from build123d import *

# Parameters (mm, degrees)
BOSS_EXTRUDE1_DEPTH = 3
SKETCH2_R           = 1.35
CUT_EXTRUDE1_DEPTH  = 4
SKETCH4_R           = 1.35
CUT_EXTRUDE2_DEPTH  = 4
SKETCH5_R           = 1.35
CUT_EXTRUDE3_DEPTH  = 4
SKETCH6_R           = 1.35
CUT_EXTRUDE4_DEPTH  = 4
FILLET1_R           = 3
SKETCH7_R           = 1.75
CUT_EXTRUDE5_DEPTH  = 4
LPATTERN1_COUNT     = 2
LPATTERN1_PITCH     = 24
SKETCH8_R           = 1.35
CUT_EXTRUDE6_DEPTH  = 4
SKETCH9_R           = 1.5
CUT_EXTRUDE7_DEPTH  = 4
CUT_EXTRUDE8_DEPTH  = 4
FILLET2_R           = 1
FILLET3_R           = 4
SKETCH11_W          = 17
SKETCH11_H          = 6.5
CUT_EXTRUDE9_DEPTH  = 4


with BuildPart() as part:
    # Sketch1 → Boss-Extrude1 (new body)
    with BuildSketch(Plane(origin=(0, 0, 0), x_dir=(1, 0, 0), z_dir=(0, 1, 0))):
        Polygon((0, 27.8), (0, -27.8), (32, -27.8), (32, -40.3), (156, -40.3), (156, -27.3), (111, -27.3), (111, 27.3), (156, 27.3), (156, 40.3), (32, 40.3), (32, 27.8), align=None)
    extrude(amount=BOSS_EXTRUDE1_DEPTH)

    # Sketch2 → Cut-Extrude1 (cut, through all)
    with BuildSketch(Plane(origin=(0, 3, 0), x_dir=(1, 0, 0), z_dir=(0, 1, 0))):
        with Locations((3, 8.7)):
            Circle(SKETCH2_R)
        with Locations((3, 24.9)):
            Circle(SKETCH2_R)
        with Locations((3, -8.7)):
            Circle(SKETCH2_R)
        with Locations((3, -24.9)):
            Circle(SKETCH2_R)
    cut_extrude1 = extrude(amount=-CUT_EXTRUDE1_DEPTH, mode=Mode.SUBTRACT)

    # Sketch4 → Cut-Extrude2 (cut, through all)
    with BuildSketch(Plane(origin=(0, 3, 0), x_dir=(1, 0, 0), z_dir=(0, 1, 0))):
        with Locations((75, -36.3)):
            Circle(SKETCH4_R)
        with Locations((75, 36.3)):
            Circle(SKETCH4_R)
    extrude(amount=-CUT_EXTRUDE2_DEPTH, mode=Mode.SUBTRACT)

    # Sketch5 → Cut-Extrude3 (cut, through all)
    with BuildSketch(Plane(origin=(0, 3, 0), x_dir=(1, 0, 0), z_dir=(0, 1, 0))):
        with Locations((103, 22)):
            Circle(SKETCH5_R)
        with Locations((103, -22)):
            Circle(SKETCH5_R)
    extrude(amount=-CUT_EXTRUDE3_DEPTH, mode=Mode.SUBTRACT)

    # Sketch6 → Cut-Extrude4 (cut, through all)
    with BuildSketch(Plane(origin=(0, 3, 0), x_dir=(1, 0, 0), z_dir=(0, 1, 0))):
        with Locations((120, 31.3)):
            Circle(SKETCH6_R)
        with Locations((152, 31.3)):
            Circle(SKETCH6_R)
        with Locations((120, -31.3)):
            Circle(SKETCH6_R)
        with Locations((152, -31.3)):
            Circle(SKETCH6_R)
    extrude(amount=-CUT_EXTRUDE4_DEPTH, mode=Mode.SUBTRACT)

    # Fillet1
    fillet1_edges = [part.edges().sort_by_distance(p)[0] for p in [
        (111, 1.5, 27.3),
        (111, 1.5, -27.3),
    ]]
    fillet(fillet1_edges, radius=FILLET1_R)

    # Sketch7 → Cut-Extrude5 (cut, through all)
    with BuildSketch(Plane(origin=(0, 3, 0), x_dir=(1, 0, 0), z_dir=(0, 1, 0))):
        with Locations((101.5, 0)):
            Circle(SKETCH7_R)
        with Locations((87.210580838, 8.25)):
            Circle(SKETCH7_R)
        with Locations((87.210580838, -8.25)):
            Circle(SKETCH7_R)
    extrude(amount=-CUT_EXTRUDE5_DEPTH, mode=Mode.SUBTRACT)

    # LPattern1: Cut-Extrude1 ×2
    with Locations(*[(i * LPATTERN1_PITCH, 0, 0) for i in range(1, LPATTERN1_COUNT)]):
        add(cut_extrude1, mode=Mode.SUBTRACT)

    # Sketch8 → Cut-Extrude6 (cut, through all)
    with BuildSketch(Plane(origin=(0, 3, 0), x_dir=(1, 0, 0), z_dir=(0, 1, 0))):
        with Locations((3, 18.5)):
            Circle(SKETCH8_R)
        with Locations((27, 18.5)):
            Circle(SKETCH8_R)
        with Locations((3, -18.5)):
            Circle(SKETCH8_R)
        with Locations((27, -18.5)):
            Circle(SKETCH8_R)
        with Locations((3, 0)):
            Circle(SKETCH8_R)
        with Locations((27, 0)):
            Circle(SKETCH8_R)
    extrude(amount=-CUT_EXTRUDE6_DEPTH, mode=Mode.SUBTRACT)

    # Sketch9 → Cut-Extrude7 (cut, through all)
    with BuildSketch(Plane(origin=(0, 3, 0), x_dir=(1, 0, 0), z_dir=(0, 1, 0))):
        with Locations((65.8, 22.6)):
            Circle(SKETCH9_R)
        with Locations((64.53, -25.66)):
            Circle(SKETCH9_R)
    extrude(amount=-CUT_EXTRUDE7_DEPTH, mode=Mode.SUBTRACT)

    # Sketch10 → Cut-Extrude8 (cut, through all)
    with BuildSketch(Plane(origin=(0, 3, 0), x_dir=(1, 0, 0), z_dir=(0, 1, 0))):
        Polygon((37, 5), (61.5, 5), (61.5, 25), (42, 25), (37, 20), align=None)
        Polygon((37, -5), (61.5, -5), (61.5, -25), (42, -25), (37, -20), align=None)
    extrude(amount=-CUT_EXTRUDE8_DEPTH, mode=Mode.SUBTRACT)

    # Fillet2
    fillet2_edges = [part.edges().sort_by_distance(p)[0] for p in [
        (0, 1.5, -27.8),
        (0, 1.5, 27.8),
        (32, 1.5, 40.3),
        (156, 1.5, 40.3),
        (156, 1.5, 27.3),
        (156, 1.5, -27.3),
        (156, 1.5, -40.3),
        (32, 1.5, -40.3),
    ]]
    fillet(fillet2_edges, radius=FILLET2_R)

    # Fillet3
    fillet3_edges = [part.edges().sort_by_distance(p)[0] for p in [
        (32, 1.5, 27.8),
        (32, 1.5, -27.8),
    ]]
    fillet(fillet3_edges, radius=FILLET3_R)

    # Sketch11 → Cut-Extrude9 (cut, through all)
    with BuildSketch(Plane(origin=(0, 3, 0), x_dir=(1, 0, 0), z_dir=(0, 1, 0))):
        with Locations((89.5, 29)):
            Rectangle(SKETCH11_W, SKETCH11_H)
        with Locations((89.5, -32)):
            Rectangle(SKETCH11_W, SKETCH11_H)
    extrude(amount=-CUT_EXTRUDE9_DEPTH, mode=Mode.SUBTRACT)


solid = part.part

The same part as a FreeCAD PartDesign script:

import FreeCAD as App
import Part
import Sketcher
from FreeCAD import Vector


def edges_at(feature, points):
    """Names of the edges that pass closest to the given points."""
    edges = feature.Shape.Edges
    near = lambda p: min(range(len(edges)), key=lambda i: edges[i].distToShape(Part.Vertex(*p))[0])
    return sorted({f"Edge{near(p) + 1}" for p in points})


def add_polygon(sketch, points):
    """Adds a closed chain of lines whose ends are joined by coincident constraints."""
    first, n = sketch.GeometryCount, len(points)
    for a, b in zip(points, points[1:] + points[:1]):
        sketch.addGeometry(Part.LineSegment(App.Vector(*a, 0), App.Vector(*b, 0)), False)
    for i in range(n):
        sketch.addConstraint(Sketcher.Constraint("Coincident", first + i, 2, first + (i + 1) % n, 1))

doc = App.newDocument("Part")
body = doc.addObject("PartDesign::Body", "Body")

sketch1 = doc.addObject("Sketcher::SketchObject", "Sketch")
body.addObject(sketch1)
sketch1.AttachmentSupport = (doc.XZ_Plane, [""])
sketch1.MapMode = "FlatFace"
add_polygon(sketch1, [(0, -27.8), (0, 27.8), (32, 27.8), (32, 40.3), (156, 40.3), (156, 27.3), (111, 27.3), (111, -27.3), (156, -27.3), (156, -40.3), (32, -40.3), (32, -27.8)])
sketch1.addConstraint(Sketcher.Constraint("Vertical", 0))
sketch1.addConstraint(Sketcher.Constraint("Horizontal", 1))
sketch1.addConstraint(Sketcher.Constraint("Vertical", 2))
sketch1.addConstraint(Sketcher.Constraint("Horizontal", 3))
sketch1.addConstraint(Sketcher.Constraint("Vertical", 4))
sketch1.addConstraint(Sketcher.Constraint("Horizontal", 5))
sketch1.addConstraint(Sketcher.Constraint("Vertical", 6))
sketch1.addConstraint(Sketcher.Constraint("Horizontal", 7))
sketch1.addConstraint(Sketcher.Constraint("Vertical", 8))
sketch1.addConstraint(Sketcher.Constraint("Horizontal", 9))
sketch1.addConstraint(Sketcher.Constraint("Vertical", 10))
sketch1.addConstraint(Sketcher.Constraint("Horizontal", 11))
sketch1.addConstraint(Sketcher.Constraint("Symmetric", 0, 2, 11, 2, -1, 1))
sketch1.addConstraint(Sketcher.Constraint("Symmetric", 4, 2, 7, 2, -1))
sketch1.addConstraint(Sketcher.Constraint("Symmetric", 2, 2, 9, 2, -1))
sketch1.addConstraint(Sketcher.Constraint("DistanceX", 1, 1, 1, 2, 32.0))
sketch1.addConstraint(Sketcher.Constraint("DistanceX", 3, 1, 3, 2, 124.0))
sketch1.addConstraint(Sketcher.Constraint("DistanceX", 5, 2, 5, 1, 45.0))
sketch1.addConstraint(Sketcher.Constraint("DistanceY", 4, 2, 4, 1, 13.0))
sketch1.addConstraint(Sketcher.Constraint("DistanceY", 0, 1, 0, 2, 55.6))
sketch1.addConstraint(Sketcher.Constraint("DistanceY", 2, 1, 2, 2, 12.5))
pad1 = doc.addObject("PartDesign::Pad", "Pad")
body.addObject(pad1)
pad1.Profile = sketch1
pad1.Length = 3
pad1.Reversed = True

sketch2 = doc.addObject("Sketcher::SketchObject", "Sketch001")
body.addObject(sketch2)
sketch2.AttachmentSupport = (doc.XZ_Plane, [""])
sketch2.MapMode = "FlatFace"
sketch2.AttachmentOffset = App.Placement(Vector(0, 0, -3), App.Rotation())
sketch2.addGeometry(Part.Circle(Vector(3, -8.7, 0), Vector(0, 0, 1), 1.35), False)
sketch2.addGeometry(Part.Circle(Vector(3, -24.9, 0), Vector(0, 0, 1), 1.35), False)
sketch2.addGeometry(Part.Circle(Vector(3, 8.7, 0), Vector(0, 0, 1), 1.35), False)
sketch2.addGeometry(Part.Circle(Vector(3, 24.9, 0), Vector(0, 0, 1), 1.35), False)
sketch2.addConstraint(Sketcher.Constraint("Equal", 0, 1))
sketch2.addConstraint(Sketcher.Constraint("Equal", 1, 2))
sketch2.addConstraint(Sketcher.Constraint("Equal", 2, 3))
sketch2.addConstraint(Sketcher.Constraint("Symmetric", 0, 3, 2, 3, -1))
sketch2.addConstraint(Sketcher.Constraint("Symmetric", 1, 3, 3, 3, -1))
sketch2.addConstraint(Sketcher.Constraint("Vertical", 0, 3, 1, 3))
sketch2.addConstraint(Sketcher.Constraint("Diameter", 0, 2.7))
sketch2.addConstraint(Sketcher.Constraint("DistanceX", -1, 1, 0, 3, 3.0))
sketch2.addConstraint(Sketcher.Constraint("DistanceY", 0, 3, -1, 1, 8.7))
sketch2.addConstraint(Sketcher.Constraint("DistanceY", 1, 3, -1, 1, 24.9))
pocket1 = doc.addObject("PartDesign::Pocket", "Pocket")
body.addObject(pocket1)
pocket1.Profile = sketch2
pocket1.Type = "ThroughAll"
pocket1.Reversed = True

sketch3 = doc.addObject("Sketcher::SketchObject", "Sketch002")
body.addObject(sketch3)
sketch3.AttachmentSupport = (doc.XZ_Plane, [""])
sketch3.MapMode = "FlatFace"
sketch3.AttachmentOffset = App.Placement(Vector(0, 0, -3), App.Rotation())
sketch3.addGeometry(Part.Circle(Vector(75, 36.3, 0), Vector(0, 0, 1), 1.35), False)
sketch3.addGeometry(Part.Circle(Vector(75, -36.3, 0), Vector(0, 0, 1), 1.35), False)
sketch3.addConstraint(Sketcher.Constraint("Equal", 0, 1))
sketch3.addConstraint(Sketcher.Constraint("Symmetric", 0, 3, 1, 3, -1))
sketch3.addConstraint(Sketcher.Constraint("Diameter", 0, 2.7))
sketch3.addConstraint(Sketcher.Constraint("DistanceX", -1, 1, 0, 3, 75.0))
sketch3.addConstraint(Sketcher.Constraint("DistanceY", -1, 1, 0, 3, 36.3))
pocket2 = doc.addObject("PartDesign::Pocket", "Pocket001")
body.addObject(pocket2)
pocket2.Profile = sketch3
pocket2.Type = "ThroughAll"
pocket2.Reversed = True

sketch4 = doc.addObject("Sketcher::SketchObject", "Sketch003")
body.addObject(sketch4)
sketch4.AttachmentSupport = (doc.XZ_Plane, [""])
sketch4.MapMode = "FlatFace"
sketch4.AttachmentOffset = App.Placement(Vector(0, 0, -3), App.Rotation())
sketch4.addGeometry(Part.Circle(Vector(103, -22, 0), Vector(0, 0, 1), 1.35), False)
sketch4.addGeometry(Part.Circle(Vector(103, 22, 0), Vector(0, 0, 1), 1.35), False)
sketch4.addConstraint(Sketcher.Constraint("Equal", 0, 1))
sketch4.addConstraint(Sketcher.Constraint("Symmetric", 0, 3, 1, 3, -1))
sketch4.addConstraint(Sketcher.Constraint("Diameter", 0, 2.7))
sketch4.addConstraint(Sketcher.Constraint("DistanceX", -1, 1, 0, 3, 103.0))
sketch4.addConstraint(Sketcher.Constraint("DistanceY", 0, 3, -1, 1, 22.0))
pocket3 = doc.addObject("PartDesign::Pocket", "Pocket002")
body.addObject(pocket3)
pocket3.Profile = sketch4
pocket3.Type = "ThroughAll"
pocket3.Reversed = True

sketch5 = doc.addObject("Sketcher::SketchObject", "Sketch004")
body.addObject(sketch5)
sketch5.AttachmentSupport = (doc.XZ_Plane, [""])
sketch5.MapMode = "FlatFace"
sketch5.AttachmentOffset = App.Placement(Vector(0, 0, -3), App.Rotation())
sketch5.addGeometry(Part.Circle(Vector(120, -31.3, 0), Vector(0, 0, 1), 1.35), False)
sketch5.addGeometry(Part.Circle(Vector(152, -31.3, 0), Vector(0, 0, 1), 1.35), False)
sketch5.addGeometry(Part.Circle(Vector(120, 31.3, 0), Vector(0, 0, 1), 1.35), False)
sketch5.addGeometry(Part.Circle(Vector(152, 31.3, 0), Vector(0, 0, 1), 1.35), False)
sketch5.addConstraint(Sketcher.Constraint("Equal", 0, 1))
sketch5.addConstraint(Sketcher.Constraint("Equal", 1, 2))
sketch5.addConstraint(Sketcher.Constraint("Equal", 2, 3))
sketch5.addConstraint(Sketcher.Constraint("Symmetric", 0, 3, 2, 3, -1))
sketch5.addConstraint(Sketcher.Constraint("Symmetric", 1, 3, 3, 3, -1))
sketch5.addConstraint(Sketcher.Constraint("Horizontal", 0, 3, 1, 3))
sketch5.addConstraint(Sketcher.Constraint("Diameter", 0, 2.7))
sketch5.addConstraint(Sketcher.Constraint("DistanceX", -1, 1, 0, 3, 120.0))
sketch5.addConstraint(Sketcher.Constraint("DistanceX", -1, 1, 1, 3, 152.0))
sketch5.addConstraint(Sketcher.Constraint("DistanceY", 0, 3, -1, 1, 31.3))
pocket4 = doc.addObject("PartDesign::Pocket", "Pocket003")
body.addObject(pocket4)
pocket4.Profile = sketch5
pocket4.Type = "ThroughAll"
pocket4.Reversed = True
doc.recompute()

fillet = doc.addObject("PartDesign::Fillet", "Fillet")
body.addObject(fillet)
fillet.Base = (pocket4, edges_at(pocket4, [(111, 1.5, 27.3), (111, 1.5, -27.3)]))
fillet.Radius = 3

sketch6 = doc.addObject("Sketcher::SketchObject", "Sketch005")
body.addObject(sketch6)
sketch6.AttachmentSupport = (doc.XZ_Plane, [""])
sketch6.MapMode = "FlatFace"
sketch6.AttachmentOffset = App.Placement(Vector(0, 0, -3), App.Rotation())
sketch6.addGeometry(Part.Circle(Vector(101.5, 0, 0), Vector(0, 0, 1), 1.75), False)
sketch6.addGeometry(Part.Circle(Vector(87.210581, -8.25, 0), Vector(0, 0, 1), 1.75), False)
sketch6.addGeometry(Part.Circle(Vector(87.210581, 8.25, 0), Vector(0, 0, 1), 1.75), False)
sketch6.addConstraint(Sketcher.Constraint("Equal", 0, 1))
sketch6.addConstraint(Sketcher.Constraint("Equal", 1, 2))
sketch6.addConstraint(Sketcher.Constraint("Symmetric", 1, 3, 2, 3, -1))
sketch6.addConstraint(Sketcher.Constraint("PointOnObject", 0, 3, -1))
sketch6.addConstraint(Sketcher.Constraint("Diameter", 0, 3.5))
sketch6.addConstraint(Sketcher.Constraint("DistanceX", -1, 1, 0, 3, 101.5))
sketch6.addConstraint(Sketcher.Constraint("DistanceY", 1, 3, 2, 3, 16.5))
sketch6.addConstraint(Sketcher.Constraint("DistanceX", -1, 1, 1, 3, 87.210581))
pocket5 = doc.addObject("PartDesign::Pocket", "Pocket004")
body.addObject(pocket5)
pocket5.Profile = sketch6
pocket5.Type = "ThroughAll"
pocket5.Reversed = True
doc.recompute()

linearpattern = doc.addObject("PartDesign::LinearPattern", "LinearPattern")
body.addObject(linearpattern)
linearpattern.Originals = [pocket1]
linearpattern.Direction = (doc.X_Axis, [""])
linearpattern.Mode = "offset"
linearpattern.Offset = 24
linearpattern.Occurrences = 2
body.Tip = linearpattern

sketch7 = doc.addObject("Sketcher::SketchObject", "Sketch006")
body.addObject(sketch7)
sketch7.AttachmentSupport = (doc.XZ_Plane, [""])
sketch7.MapMode = "FlatFace"
sketch7.AttachmentOffset = App.Placement(Vector(0, 0, -3), App.Rotation())
sketch7.addGeometry(Part.Circle(Vector(3, -18.5, 0), Vector(0, 0, 1), 1.35), False)
sketch7.addGeometry(Part.Circle(Vector(27, -18.5, 0), Vector(0, 0, 1), 1.35), False)
sketch7.addGeometry(Part.Circle(Vector(3, 18.5, 0), Vector(0, 0, 1), 1.35), False)
sketch7.addGeometry(Part.Circle(Vector(27, 18.5, 0), Vector(0, 0, 1), 1.35), False)
sketch7.addGeometry(Part.Circle(Vector(3, 0, 0), Vector(0, 0, 1), 1.35), False)
sketch7.addGeometry(Part.Circle(Vector(27, 0, 0), Vector(0, 0, 1), 1.35), False)
sketch7.addConstraint(Sketcher.Constraint("Equal", 0, 1))
sketch7.addConstraint(Sketcher.Constraint("Equal", 1, 2))
sketch7.addConstraint(Sketcher.Constraint("Equal", 2, 3))
sketch7.addConstraint(Sketcher.Constraint("Equal", 3, 4))
sketch7.addConstraint(Sketcher.Constraint("Equal", 4, 5))
sketch7.addConstraint(Sketcher.Constraint("Symmetric", 0, 3, 2, 3, -1))
sketch7.addConstraint(Sketcher.Constraint("Symmetric", 1, 3, 3, 3, -1))
sketch7.addConstraint(Sketcher.Constraint("PointOnObject", 4, 3, -1))
sketch7.addConstraint(Sketcher.Constraint("PointOnObject", 5, 3, -1))
sketch7.addConstraint(Sketcher.Constraint("Horizontal", 0, 3, 1, 3))
sketch7.addConstraint(Sketcher.Constraint("Vertical", 2, 3, 4, 3))
sketch7.addConstraint(Sketcher.Constraint("Vertical", 3, 3, 5, 3))
sketch7.addConstraint(Sketcher.Constraint("Diameter", 0, 2.7))
sketch7.addConstraint(Sketcher.Constraint("DistanceX", -1, 1, 0, 3, 3.0))
sketch7.addConstraint(Sketcher.Constraint("DistanceX", -1, 1, 1, 3, 27.0))
sketch7.addConstraint(Sketcher.Constraint("DistanceY", 0, 3, 2, 3, 37.0))
pocket6 = doc.addObject("PartDesign::Pocket", "Pocket005")
body.addObject(pocket6)
pocket6.Profile = sketch7
pocket6.Type = "ThroughAll"
pocket6.Reversed = True

sketch8 = doc.addObject("Sketcher::SketchObject", "Sketch007")
body.addObject(sketch8)
sketch8.AttachmentSupport = (doc.XZ_Plane, [""])
sketch8.MapMode = "FlatFace"
sketch8.AttachmentOffset = App.Placement(Vector(0, 0, -3), App.Rotation())
sketch8.addGeometry(Part.Circle(Vector(65.8, -22.6, 0), Vector(0, 0, 1), 1.5), False)
sketch8.addGeometry(Part.Circle(Vector(64.53, 25.66, 0), Vector(0, 0, 1), 1.5), False)
sketch8.addConstraint(Sketcher.Constraint("Equal", 0, 1))
sketch8.addConstraint(Sketcher.Constraint("Diameter", 0, 3.0))
sketch8.addConstraint(Sketcher.Constraint("DistanceX", -1, 1, 0, 3, 65.8))
sketch8.addConstraint(Sketcher.Constraint("DistanceY", 0, 3, -1, 1, 22.6))
sketch8.addConstraint(Sketcher.Constraint("DistanceX", -1, 1, 1, 3, 64.53))
sketch8.addConstraint(Sketcher.Constraint("DistanceY", -1, 1, 1, 3, 25.66))
pocket7 = doc.addObject("PartDesign::Pocket", "Pocket006")
body.addObject(pocket7)
pocket7.Profile = sketch8
pocket7.Type = "ThroughAll"
pocket7.Reversed = True

sketch9 = doc.addObject("Sketcher::SketchObject", "Sketch008")
body.addObject(sketch9)
sketch9.AttachmentSupport = (doc.XZ_Plane, [""])
sketch9.MapMode = "FlatFace"
sketch9.AttachmentOffset = App.Placement(Vector(0, 0, -3), App.Rotation())
add_polygon(sketch9, [(37, -5), (61.5, -5), (61.5, -25), (42, -25), (37, -20)])
add_polygon(sketch9, [(61.5, 5), (37, 5), (37, 20), (42, 25), (61.5, 25)])
sketch9.addConstraint(Sketcher.Constraint("Horizontal", 0))
sketch9.addConstraint(Sketcher.Constraint("Vertical", 1))
sketch9.addConstraint(Sketcher.Constraint("Horizontal", 2))
sketch9.addConstraint(Sketcher.Constraint("Vertical", 4))
sketch9.addConstraint(Sketcher.Constraint("Horizontal", 5))
sketch9.addConstraint(Sketcher.Constraint("Vertical", 6))
sketch9.addConstraint(Sketcher.Constraint("Horizontal", 8))
sketch9.addConstraint(Sketcher.Constraint("Vertical", 9))
sketch9.addConstraint(Sketcher.Constraint("Symmetric", 4, 2, 5, 2, -1))
sketch9.addConstraint(Sketcher.Constraint("Symmetric", 2, 2, 7, 2, -1))
sketch9.addConstraint(Sketcher.Constraint("Perpendicular", 3, 7))
sketch9.addConstraint(Sketcher.Constraint("Vertical", 1, 2, 8, 2))
sketch9.addConstraint(Sketcher.Constraint("Equal", 4, 6))
sketch9.addConstraint(Sketcher.Constraint("DistanceY", 1, 2, 1, 1, 20.0))
sketch9.addConstraint(Sketcher.Constraint("DistanceY", 4, 1, 4, 2, 15.0))
sketch9.addConstraint(Sketcher.Constraint("DistanceX", 0, 1, 0, 2, 24.5))
sketch9.addConstraint(Sketcher.Constraint("DistanceY", 0, 2, -1, 1, 5.0))
sketch9.addConstraint(Sketcher.Constraint("DistanceX", -1, 1, 2, 2, 42.0))
pocket8 = doc.addObject("PartDesign::Pocket", "Pocket007")
body.addObject(pocket8)
pocket8.Profile = sketch9
pocket8.Type = "ThroughAll"
pocket8.Reversed = True
doc.recompute()

fillet2 = doc.addObject("PartDesign::Fillet", "Fillet001")
body.addObject(fillet2)
fillet2.Base = (pocket8, edges_at(pocket8, [
    (0, 1.5, -27.8),
    (0, 1.5, 27.8),
    (32, 1.5, 40.3),
    (156, 1.5, 40.3),
    (156, 1.5, 27.3),
    (156, 1.5, -27.3),
    (156, 1.5, -40.3),
    (32, 1.5, -40.3),
]))
fillet2.Radius = 1
doc.recompute()

fillet3 = doc.addObject("PartDesign::Fillet", "Fillet002")
body.addObject(fillet3)
fillet3.Base = (fillet2, edges_at(fillet2, [(32, 1.5, 27.8), (32, 1.5, -27.8)]))
fillet3.Radius = 4

sketch10 = doc.addObject("Sketcher::SketchObject", "Sketch009")
body.addObject(sketch10)
sketch10.AttachmentSupport = (doc.XZ_Plane, [""])
sketch10.MapMode = "FlatFace"
sketch10.AttachmentOffset = App.Placement(Vector(0, 0, -3), App.Rotation())
add_polygon(sketch10, [(81, -32.25), (81, -25.75), (98, -25.75), (98, -32.25)])
add_polygon(sketch10, [(81, 28.75), (81, 35.25), (98, 35.25), (98, 28.75)])
sketch10.addConstraint(Sketcher.Constraint("Vertical", 0))
sketch10.addConstraint(Sketcher.Constraint("Horizontal", 1))
sketch10.addConstraint(Sketcher.Constraint("Vertical", 2))
sketch10.addConstraint(Sketcher.Constraint("Horizontal", 3))
sketch10.addConstraint(Sketcher.Constraint("Vertical", 4))
sketch10.addConstraint(Sketcher.Constraint("Horizontal", 5))
sketch10.addConstraint(Sketcher.Constraint("Vertical", 6))
sketch10.addConstraint(Sketcher.Constraint("Horizontal", 7))
sketch10.addConstraint(Sketcher.Constraint("Vertical", 3, 2, 4, 2))
sketch10.addConstraint(Sketcher.Constraint("Vertical", 2, 2, 5, 2))
sketch10.addConstraint(Sketcher.Constraint("Equal", 2, 4))
sketch10.addConstraint(Sketcher.Constraint("DistanceX", 1, 1, 1, 2, 17.0))
sketch10.addConstraint(Sketcher.Constraint("DistanceY", 0, 1, 0, 2, 6.5))
sketch10.addConstraint(Sketcher.Constraint("DistanceX", -1, 1, 0, 2, 81.0))
sketch10.addConstraint(Sketcher.Constraint("DistanceY", 0, 2, 4, 2, 61.0))
sketch10.addConstraint(Sketcher.Constraint("DistanceY", 0, 2, -1, 1, 25.75))
pocket9 = doc.addObject("PartDesign::Pocket", "Pocket008")
body.addObject(pocket9)
pocket9.Profile = sketch10
pocket9.Type = "ThroughAll"
pocket9.Reversed = True

doc.recompute()
